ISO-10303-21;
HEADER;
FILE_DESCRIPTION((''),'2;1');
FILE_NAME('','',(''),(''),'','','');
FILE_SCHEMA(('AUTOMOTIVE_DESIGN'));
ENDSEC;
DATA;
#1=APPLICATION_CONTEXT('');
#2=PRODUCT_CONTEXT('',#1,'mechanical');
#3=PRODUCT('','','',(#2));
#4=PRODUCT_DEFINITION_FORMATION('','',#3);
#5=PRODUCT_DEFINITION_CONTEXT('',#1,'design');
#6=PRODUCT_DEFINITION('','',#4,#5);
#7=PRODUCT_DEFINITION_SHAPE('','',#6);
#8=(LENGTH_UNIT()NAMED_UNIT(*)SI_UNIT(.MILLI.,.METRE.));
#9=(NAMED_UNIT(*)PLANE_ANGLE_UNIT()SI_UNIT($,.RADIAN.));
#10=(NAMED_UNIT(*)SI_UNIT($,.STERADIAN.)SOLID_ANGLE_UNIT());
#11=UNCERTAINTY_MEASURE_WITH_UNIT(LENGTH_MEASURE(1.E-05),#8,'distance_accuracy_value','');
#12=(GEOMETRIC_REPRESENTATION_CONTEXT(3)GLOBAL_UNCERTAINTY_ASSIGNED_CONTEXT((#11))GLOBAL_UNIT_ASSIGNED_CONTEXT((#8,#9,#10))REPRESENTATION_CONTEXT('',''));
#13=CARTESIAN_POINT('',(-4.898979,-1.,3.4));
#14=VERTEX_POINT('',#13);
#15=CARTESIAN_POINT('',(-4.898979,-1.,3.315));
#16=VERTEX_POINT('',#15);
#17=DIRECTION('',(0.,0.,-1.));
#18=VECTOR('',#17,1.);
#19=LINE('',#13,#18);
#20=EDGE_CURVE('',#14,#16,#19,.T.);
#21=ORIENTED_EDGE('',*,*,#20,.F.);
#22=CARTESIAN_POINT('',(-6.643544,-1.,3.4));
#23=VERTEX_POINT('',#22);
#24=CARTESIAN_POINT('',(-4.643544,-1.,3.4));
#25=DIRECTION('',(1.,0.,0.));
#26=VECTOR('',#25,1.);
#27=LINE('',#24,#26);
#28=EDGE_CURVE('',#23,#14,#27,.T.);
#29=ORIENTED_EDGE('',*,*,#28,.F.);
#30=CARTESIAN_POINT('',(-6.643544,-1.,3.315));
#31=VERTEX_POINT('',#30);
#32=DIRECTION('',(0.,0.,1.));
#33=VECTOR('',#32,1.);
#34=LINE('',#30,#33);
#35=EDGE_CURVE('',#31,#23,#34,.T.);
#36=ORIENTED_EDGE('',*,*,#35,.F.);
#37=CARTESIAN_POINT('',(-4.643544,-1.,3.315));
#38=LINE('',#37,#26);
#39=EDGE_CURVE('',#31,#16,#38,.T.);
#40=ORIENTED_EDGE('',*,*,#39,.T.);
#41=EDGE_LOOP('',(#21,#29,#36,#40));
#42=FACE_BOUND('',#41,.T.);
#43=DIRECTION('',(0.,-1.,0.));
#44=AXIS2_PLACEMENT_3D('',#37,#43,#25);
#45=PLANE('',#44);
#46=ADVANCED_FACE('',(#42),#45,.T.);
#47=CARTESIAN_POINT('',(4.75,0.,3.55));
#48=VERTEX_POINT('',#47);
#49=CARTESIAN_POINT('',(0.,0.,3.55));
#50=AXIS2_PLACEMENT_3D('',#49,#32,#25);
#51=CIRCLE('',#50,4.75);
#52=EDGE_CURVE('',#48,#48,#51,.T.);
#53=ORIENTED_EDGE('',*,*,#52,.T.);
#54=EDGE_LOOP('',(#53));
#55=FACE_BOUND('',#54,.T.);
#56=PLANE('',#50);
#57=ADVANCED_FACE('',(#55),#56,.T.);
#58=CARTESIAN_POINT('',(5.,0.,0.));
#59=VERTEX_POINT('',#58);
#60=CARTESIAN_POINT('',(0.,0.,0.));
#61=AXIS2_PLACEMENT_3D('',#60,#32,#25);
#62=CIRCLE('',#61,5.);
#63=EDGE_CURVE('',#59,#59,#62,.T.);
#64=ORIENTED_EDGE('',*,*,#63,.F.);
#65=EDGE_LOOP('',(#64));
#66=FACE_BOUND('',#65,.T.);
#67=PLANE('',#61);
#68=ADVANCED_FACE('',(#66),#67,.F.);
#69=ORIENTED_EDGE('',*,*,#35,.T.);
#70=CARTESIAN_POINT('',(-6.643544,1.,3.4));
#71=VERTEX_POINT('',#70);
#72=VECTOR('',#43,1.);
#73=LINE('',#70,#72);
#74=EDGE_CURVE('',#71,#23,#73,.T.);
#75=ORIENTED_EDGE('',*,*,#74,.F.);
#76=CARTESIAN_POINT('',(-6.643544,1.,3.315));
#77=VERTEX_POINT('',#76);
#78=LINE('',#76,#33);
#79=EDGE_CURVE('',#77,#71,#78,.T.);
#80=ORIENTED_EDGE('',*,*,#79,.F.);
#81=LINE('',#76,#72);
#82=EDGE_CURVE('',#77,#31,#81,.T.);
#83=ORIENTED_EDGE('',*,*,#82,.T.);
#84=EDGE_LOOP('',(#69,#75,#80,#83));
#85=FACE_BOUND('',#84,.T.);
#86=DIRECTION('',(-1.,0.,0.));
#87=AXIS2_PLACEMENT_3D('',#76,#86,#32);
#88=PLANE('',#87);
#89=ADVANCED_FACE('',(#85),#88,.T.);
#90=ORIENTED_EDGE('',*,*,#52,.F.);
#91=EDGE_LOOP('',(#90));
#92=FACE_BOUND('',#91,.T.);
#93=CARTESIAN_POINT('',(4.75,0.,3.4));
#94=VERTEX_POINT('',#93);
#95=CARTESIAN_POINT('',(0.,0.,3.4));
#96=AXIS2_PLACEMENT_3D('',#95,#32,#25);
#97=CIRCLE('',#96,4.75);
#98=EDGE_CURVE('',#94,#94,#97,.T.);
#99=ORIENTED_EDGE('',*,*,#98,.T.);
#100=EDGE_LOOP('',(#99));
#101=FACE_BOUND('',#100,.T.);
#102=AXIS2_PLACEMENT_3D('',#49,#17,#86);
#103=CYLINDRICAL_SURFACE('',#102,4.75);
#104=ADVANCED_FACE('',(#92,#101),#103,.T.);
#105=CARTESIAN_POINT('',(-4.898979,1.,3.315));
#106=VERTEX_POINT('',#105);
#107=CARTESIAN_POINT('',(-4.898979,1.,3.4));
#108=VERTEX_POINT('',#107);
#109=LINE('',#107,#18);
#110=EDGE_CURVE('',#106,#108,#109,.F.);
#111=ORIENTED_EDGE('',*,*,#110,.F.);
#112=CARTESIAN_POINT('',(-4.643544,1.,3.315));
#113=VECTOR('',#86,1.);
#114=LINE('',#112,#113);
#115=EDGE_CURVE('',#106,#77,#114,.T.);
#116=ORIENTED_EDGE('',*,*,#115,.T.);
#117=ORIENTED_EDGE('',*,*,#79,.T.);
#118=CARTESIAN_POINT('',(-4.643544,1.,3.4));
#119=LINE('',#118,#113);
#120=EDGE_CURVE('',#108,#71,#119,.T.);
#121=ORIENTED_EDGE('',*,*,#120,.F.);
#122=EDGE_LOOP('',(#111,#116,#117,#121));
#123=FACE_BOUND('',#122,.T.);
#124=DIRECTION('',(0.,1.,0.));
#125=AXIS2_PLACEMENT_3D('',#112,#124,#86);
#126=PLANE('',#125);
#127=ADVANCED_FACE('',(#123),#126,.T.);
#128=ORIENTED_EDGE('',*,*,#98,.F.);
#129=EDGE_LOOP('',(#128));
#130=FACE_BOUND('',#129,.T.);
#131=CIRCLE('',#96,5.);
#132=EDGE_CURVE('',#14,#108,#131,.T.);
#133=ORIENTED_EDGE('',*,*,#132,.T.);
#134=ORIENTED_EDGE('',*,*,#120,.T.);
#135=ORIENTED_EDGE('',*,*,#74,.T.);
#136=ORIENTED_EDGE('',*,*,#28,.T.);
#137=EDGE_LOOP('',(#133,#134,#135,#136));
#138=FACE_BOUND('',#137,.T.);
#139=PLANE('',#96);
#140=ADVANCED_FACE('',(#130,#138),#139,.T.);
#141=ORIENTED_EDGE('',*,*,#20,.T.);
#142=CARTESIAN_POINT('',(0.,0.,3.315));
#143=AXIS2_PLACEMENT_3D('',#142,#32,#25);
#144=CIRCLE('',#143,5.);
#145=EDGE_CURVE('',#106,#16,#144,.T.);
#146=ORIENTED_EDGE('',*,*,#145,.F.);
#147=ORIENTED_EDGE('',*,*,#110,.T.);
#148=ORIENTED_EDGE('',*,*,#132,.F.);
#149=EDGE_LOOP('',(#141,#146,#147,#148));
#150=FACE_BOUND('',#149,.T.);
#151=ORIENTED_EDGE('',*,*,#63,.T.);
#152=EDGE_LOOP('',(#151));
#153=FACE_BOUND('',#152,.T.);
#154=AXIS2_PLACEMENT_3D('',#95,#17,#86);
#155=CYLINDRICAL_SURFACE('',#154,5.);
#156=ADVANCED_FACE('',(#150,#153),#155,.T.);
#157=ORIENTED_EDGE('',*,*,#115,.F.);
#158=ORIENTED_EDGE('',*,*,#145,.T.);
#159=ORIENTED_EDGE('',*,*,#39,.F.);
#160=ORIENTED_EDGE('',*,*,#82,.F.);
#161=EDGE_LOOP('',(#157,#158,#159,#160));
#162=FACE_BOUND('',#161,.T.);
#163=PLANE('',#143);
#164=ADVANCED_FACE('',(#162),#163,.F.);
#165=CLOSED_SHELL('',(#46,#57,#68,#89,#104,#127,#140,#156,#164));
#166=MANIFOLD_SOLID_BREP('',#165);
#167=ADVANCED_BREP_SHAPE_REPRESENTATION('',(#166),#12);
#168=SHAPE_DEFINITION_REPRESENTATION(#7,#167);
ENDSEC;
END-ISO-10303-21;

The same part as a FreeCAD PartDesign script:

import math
import FreeCAD as App
import Part
import Sketcher
Q = App.Units.Quantity

doc = App.newDocument("Part")
body = doc.addObject("PartDesign::Body", "Body")

# Sketch on XY plane
sketch1 = body.newObject("Sketcher::SketchObject", "Sketch")
sketch1.AttachmentSupport = (doc.getObject("XY_Plane"), [""])
sketch1.MapMode = "FlatFace"
sketch1.addGeometry(Part.Circle(App.Vector(0, 0, 0), App.Vector(0, 0, 1), 5), False)
sketch1.addConstraint([
    Sketcher.Constraint("Coincident", 0, 3, -1, 1),
    Sketcher.Constraint("Diameter", 0, Q("10 mm")),
])
pad1 = body.newObject("PartDesign::Pad", "Pad")
pad1.Profile = sketch1
pad1.Length = 3.4

# Sketch on XY plane
sketch2 = body.newObject("Sketcher::SketchObject", "Sketch001")
sketch2.AttachmentSupport = (doc.getObject("XY_Plane"), [""])
sketch2.MapMode = "FlatFace"
sketch2.AttachmentOffset = App.Placement(App.Vector(0, 0, 3.4), App.Rotation())
sketch2.addGeometry(Part.Circle(App.Vector(0, 0, 0), App.Vector(0, 0, 1), 4.8), False)
sketch2.addConstraint([
    Sketcher.Constraint("Coincident", 0, 3, -1, 1),
    Sketcher.Constraint("Diameter", 0, Q("9.5 mm")),
])
pad2 = body.newObject("PartDesign::Pad", "Pad001")
pad2.Profile = sketch2
pad2.Length = 0.15

# Sketch on XY plane
sketch3 = body.newObject("Sketcher::SketchObject", "Sketch002")
sketch3.AttachmentSupport = (doc.getObject("XY_Plane"), [""])
sketch3.MapMode = "FlatFace"
sketch3.AttachmentOffset = App.Placement(App.Vector(0, 0, 3.315), App.Rotation())
sketch3.addGeometry([
    Part.LineSegment(App.Vector(-4.6, 1, 0), App.Vector(-6.6, 1, 0)),
    Part.LineSegment(App.Vector(-6.6, 1, 0), App.Vector(-6.6, -1, 0)),
    Part.LineSegment(App.Vector(-6.6, -1, 0), App.Vector(-4.6, -1, 0)),
    Part.ArcOfCircle(Part.Circle(App.Vector(0, 0, 0), App.Vector(0, 0, 1), 4.7), math.radians(168), math.radians(192)),
], False)
sketch3.addConstraint([
    Sketcher.Constraint("Coincident", 0, 2, 1, 1),
    Sketcher.Constraint("Coincident", 1, 2, 2, 1),
    Sketcher.Constraint("Coincident", 2, 2, 3, 2),
    Sketcher.Constraint("Coincident", 3, 1, 0, 1),
    Sketcher.Constraint("Horizontal", 0),
    Sketcher.Constraint("Vertical", 1),
    Sketcher.Constraint("Horizontal", 2),
    Sketcher.Constraint("Coincident", 3, 3, -1, 1),
    Sketcher.Constraint("Vertical", 2, 2, 3, 1),
    Sketcher.Constraint("Equal", 2, 1),
    Sketcher.Constraint("DistanceX", 0, 2, 0, 1, Q("2 mm")),
    Sketcher.Constraint("Radius", 3, Q("4.75 mm")),
])
pad3 = body.newObject("PartDesign::Pad", "Pad002")
pad3.Profile = sketch3
pad3.Length = 0.085

doc.recompute()
